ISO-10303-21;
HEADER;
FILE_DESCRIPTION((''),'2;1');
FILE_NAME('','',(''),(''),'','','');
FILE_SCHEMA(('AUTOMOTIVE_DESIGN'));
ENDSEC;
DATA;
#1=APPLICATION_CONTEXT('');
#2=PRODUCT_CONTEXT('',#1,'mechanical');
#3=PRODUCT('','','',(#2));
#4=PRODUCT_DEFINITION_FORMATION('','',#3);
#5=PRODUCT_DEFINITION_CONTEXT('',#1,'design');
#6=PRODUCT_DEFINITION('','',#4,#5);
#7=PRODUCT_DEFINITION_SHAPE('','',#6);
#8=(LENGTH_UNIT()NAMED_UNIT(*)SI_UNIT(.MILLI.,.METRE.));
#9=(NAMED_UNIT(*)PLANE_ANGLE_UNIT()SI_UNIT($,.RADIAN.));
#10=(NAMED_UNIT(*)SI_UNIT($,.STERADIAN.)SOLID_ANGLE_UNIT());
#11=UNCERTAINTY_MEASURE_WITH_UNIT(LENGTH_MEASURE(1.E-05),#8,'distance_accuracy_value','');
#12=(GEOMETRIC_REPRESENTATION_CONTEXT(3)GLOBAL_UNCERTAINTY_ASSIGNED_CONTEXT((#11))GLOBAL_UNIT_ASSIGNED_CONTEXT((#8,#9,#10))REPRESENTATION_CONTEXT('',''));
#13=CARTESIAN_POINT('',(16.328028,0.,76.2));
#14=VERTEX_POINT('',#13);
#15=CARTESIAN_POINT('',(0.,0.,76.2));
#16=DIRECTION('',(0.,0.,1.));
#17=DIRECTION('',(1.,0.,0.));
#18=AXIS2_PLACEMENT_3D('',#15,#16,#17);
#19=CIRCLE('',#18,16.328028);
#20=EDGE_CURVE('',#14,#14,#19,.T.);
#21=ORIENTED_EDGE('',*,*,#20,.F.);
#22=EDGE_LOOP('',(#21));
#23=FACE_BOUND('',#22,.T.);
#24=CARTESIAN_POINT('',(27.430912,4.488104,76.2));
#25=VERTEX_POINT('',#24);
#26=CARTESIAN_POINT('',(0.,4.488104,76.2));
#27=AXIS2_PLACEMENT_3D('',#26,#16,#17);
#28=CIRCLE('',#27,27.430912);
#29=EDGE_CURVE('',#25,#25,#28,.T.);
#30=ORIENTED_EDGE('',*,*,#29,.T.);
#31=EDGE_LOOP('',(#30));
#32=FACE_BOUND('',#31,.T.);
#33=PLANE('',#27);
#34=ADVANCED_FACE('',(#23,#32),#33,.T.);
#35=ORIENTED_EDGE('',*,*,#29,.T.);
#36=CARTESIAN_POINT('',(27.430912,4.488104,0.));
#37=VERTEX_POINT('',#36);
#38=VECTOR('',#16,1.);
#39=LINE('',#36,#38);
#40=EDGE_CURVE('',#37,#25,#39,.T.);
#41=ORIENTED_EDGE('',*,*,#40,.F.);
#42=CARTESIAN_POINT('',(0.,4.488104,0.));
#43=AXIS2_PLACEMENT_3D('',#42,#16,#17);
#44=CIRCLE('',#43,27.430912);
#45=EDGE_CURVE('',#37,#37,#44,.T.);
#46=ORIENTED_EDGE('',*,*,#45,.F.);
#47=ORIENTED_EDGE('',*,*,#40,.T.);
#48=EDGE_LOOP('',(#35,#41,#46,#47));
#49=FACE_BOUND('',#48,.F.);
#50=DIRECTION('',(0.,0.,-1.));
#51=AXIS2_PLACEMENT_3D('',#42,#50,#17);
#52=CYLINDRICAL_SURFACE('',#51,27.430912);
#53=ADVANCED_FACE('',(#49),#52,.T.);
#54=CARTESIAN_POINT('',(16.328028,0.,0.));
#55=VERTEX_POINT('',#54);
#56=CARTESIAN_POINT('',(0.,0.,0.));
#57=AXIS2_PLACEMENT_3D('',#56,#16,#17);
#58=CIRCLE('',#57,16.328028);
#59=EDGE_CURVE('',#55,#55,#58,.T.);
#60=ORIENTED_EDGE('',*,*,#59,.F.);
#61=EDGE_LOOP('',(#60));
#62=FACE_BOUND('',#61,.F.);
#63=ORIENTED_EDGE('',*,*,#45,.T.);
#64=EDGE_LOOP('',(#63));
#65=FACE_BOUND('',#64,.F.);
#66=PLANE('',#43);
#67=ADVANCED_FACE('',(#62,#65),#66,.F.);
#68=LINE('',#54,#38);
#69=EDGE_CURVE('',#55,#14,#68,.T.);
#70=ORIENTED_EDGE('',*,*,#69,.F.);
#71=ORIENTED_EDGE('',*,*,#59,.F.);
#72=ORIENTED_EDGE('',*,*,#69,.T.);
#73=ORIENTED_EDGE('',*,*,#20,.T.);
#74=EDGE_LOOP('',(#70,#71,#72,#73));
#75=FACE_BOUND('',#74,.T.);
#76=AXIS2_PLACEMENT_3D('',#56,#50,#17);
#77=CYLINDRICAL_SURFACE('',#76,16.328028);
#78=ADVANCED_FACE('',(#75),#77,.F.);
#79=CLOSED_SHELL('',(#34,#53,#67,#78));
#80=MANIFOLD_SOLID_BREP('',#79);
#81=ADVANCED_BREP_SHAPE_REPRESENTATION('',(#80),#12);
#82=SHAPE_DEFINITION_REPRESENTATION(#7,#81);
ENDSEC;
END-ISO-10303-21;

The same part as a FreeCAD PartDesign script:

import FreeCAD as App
import Part
import Sketcher
Q = App.Units.Quantity

doc = App.newDocument("Part")
body = doc.addObject("PartDesign::Body", "Body")

# Sketch on XY plane
sketch1 = doc.addObject("Sketcher::SketchObject", "Sketch")
body.addObject(sketch1)
sketch1.AttachmentSupport = (doc.XY_Plane, [""])
sketch1.MapMode = "FlatFace"
sketch1.addGeometry([
    Part.Circle(App.Vector(0, 4, 0), App.Vector(0, 0, 1), 27),
    Part.Circle(App.Vector(0, 0, 0), App.Vector(0, 0, 1), 16),
], False)
sketch1.addConstraint([
    Sketcher.Constraint("Coincident", 1, 3, -1, 1),
    Sketcher.Constraint("PointOnObject", 0, 3, -2),
    Sketcher.Constraint("Diameter", 0, Q("54.861824 mm")),
    Sketcher.Constraint("Diameter", 1, Q("32.656056 mm")),
    Sketcher.Constraint("DistanceY", -1, 1, 0, 3, Q("4.488104 mm")),
])
pad1 = doc.addObject("PartDesign::Pad", "Pad")
body.addObject(pad1)
pad1.Profile = sketch1
pad1.Length = Q("3 in")

doc.recompute()
